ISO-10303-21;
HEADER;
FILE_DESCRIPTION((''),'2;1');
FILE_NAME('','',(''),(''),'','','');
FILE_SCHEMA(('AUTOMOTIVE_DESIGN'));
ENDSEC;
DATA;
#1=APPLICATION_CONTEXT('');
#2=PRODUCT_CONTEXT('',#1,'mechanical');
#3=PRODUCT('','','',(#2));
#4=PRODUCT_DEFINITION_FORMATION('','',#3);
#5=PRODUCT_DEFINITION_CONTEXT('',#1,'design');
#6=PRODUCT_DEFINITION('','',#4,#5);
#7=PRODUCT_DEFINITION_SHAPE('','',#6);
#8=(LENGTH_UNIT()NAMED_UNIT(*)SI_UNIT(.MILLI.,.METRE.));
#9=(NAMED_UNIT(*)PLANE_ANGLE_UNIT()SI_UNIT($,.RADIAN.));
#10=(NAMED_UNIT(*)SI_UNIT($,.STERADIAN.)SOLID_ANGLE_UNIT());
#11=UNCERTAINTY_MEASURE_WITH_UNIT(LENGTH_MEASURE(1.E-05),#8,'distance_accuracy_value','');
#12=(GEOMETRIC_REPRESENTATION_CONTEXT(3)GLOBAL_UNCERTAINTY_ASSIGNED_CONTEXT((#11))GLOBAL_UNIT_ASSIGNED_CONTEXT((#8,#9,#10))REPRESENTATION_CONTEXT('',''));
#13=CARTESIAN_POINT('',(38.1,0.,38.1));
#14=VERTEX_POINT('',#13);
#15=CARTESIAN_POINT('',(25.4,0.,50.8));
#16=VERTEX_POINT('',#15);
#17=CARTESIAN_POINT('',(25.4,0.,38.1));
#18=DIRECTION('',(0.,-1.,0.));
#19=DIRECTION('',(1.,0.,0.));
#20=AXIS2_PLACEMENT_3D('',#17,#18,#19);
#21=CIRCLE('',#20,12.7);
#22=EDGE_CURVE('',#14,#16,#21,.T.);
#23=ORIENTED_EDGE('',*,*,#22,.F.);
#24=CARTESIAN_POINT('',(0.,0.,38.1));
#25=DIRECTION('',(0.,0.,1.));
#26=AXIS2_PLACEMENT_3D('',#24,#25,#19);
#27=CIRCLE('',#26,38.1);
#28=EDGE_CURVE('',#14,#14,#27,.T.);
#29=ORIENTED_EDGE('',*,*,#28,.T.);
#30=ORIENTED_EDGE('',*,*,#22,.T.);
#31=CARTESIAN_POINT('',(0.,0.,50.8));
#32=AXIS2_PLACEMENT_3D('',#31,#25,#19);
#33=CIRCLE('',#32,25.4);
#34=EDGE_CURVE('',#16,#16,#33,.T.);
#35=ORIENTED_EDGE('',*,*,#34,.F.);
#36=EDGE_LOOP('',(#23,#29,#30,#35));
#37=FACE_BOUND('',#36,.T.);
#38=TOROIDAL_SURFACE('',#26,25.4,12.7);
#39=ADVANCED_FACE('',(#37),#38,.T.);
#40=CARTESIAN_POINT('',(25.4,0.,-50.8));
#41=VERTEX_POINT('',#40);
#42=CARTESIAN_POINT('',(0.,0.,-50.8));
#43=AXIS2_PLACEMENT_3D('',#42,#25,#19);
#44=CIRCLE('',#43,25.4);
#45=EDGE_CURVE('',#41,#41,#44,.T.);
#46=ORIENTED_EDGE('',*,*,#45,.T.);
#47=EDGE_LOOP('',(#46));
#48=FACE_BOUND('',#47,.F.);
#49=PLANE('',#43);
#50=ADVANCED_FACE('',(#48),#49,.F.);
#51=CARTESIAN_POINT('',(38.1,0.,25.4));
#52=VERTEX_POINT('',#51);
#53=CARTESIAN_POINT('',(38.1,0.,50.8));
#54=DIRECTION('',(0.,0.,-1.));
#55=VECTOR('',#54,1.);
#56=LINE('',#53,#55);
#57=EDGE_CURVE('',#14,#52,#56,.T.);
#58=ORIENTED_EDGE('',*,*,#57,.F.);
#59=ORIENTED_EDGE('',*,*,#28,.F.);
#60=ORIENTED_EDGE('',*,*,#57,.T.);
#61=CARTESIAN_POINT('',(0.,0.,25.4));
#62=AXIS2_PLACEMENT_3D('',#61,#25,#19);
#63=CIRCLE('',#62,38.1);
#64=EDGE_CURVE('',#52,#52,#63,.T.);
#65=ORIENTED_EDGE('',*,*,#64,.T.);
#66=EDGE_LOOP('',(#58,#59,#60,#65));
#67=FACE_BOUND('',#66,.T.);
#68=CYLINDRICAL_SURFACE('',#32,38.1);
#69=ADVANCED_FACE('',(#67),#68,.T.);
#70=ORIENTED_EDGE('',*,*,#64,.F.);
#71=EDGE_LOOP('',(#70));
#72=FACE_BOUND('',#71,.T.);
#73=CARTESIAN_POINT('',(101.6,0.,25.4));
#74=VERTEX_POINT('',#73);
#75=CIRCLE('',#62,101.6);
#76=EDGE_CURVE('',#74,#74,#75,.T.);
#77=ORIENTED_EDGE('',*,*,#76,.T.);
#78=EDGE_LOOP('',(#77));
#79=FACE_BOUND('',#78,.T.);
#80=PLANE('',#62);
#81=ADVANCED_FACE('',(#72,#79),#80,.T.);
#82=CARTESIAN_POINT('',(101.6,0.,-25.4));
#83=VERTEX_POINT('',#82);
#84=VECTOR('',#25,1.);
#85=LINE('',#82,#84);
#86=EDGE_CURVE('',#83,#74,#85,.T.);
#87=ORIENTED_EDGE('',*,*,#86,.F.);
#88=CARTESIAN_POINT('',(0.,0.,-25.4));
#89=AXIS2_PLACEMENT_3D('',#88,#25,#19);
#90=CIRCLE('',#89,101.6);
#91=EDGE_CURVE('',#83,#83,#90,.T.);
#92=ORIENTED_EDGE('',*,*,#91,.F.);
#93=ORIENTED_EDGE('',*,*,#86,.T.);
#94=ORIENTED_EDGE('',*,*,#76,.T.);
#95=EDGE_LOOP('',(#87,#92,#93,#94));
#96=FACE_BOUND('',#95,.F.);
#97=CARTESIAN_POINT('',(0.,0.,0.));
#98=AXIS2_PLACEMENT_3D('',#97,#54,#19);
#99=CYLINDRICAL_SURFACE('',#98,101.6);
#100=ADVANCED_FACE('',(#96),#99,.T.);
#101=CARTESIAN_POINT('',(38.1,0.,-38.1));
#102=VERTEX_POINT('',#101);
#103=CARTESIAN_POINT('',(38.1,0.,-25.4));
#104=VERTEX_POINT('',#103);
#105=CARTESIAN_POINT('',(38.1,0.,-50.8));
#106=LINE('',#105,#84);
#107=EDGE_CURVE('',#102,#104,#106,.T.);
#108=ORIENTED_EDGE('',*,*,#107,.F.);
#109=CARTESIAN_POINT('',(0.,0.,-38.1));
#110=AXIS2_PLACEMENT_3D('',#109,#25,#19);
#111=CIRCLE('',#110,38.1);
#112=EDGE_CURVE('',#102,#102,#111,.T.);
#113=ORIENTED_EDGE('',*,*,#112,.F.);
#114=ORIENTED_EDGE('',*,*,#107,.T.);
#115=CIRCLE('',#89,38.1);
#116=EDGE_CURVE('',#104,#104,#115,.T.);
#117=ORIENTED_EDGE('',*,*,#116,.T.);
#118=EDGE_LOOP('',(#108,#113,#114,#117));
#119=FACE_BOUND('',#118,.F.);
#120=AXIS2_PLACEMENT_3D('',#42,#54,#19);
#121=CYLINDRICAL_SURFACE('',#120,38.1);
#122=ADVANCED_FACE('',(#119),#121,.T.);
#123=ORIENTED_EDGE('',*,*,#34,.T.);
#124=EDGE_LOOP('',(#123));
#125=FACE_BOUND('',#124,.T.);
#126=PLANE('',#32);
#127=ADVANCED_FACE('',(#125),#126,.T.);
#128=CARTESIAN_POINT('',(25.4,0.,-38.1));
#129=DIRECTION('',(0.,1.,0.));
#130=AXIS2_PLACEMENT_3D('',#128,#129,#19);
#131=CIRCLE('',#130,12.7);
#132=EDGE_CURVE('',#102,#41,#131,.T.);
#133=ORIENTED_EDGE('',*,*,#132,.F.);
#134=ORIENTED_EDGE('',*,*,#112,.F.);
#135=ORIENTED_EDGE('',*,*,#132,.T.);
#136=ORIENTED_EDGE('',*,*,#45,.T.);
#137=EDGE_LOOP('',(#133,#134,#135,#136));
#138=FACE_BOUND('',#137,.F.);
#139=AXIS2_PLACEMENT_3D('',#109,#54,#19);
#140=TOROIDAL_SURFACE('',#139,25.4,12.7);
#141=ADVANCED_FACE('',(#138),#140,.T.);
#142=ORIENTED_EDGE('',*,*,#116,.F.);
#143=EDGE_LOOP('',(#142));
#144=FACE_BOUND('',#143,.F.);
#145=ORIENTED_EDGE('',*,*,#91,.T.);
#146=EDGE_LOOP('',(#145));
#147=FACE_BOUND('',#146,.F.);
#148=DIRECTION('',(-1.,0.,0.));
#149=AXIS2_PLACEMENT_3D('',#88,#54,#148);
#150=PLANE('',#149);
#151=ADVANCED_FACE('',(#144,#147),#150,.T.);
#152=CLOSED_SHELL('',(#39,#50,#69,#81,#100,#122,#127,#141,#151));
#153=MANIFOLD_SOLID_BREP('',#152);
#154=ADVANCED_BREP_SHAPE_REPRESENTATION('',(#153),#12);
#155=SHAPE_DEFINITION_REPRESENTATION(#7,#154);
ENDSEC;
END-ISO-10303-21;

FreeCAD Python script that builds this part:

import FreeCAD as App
import Part
import Sketcher
from FreeCAD import Vector
Q = App.Units.Quantity


def edges_at(feature, points):
    """Names of the edges that pass closest to the given points."""
    edges = feature.Shape.Edges
    near = lambda p: min(range(len(edges)), key=lambda i: edges[i].distToShape(Part.Vertex(*p))[0])
    return sorted({f"Edge{near(p) + 1}" for p in points})

doc = App.newDocument("Part")
body = doc.addObject("PartDesign::Body", "Body")

# Sketch on XY plane
sketch1 = body.newObject("Sketcher::SketchObject", "Sketch")
sketch1.AttachmentSupport = (doc.getObject("XY_Plane"), [""])
sketch1.MapMode = "FlatFace"
sketch1.addGeometry(Part.Circle(Vector(0, 0, 0), Vector(0, 0, 1), 102), False)
sketch1.addConstraint(Sketcher.Constraint("Coincident", 0, 3, -1, 1))
sketch1.addConstraint(Sketcher.Constraint("Diameter", 0, Q("8 in")))
pad1 = body.newObject("PartDesign::Pad", "Pad")
pad1.Profile = sketch1
pad1.Length = Q("4 in")
pad1.Midplane = True

# Sketch on XY plane
sketch2 = body.newObject("Sketcher::SketchObject", "Sketch001")
sketch2.AttachmentSupport = (doc.getObject("XY_Plane"), [""])
sketch2.MapMode = "FlatFace"
sketch2.AttachmentOffset = App.Placement(Vector(0, 0, 2 * 25.4), App.Rotation())
sketch2.addGeometry(Part.Circle(Vector(0, 0, 0), Vector(0, 0, 1), 102), False)
sketch2.addGeometry(Part.Circle(Vector(0, 0, 0), Vector(0, 0, 1), 38), False)
sketch2.addConstraint(Sketcher.Constraint("Coincident", 0, 3, -1, 1))
sketch2.addConstraint(Sketcher.Constraint("Coincident", 1, 3, -1, 1))
sketch2.addConstraint(Sketcher.Constraint("Diameter", 1, Q("3 in")))
sketch2.addConstraint(Sketcher.Constraint("Diameter", 0, Q("8 in")))
pocket1 = body.newObject("PartDesign::Pocket", "Pocket")
pocket1.Profile = sketch2
pocket1.Length = Q("1 in")
doc.recompute()

mirrored = body.newObject("PartDesign::Mirrored", "Mirrored")
mirrored.Originals = [pocket1]
mirrored.MirrorPlane = (doc.getObject("XY_Plane"), [""])
body.Tip = mirrored
doc.recompute()

fillet = body.newObject("PartDesign::Fillet", "Fillet")
fillet.Base = (mirrored, edges_at(mirrored, [(-38.1, 0, 50.8), (-38.1, 0, -50.8)]))
fillet.Radius = Q("0.5 in")

doc.recompute()
